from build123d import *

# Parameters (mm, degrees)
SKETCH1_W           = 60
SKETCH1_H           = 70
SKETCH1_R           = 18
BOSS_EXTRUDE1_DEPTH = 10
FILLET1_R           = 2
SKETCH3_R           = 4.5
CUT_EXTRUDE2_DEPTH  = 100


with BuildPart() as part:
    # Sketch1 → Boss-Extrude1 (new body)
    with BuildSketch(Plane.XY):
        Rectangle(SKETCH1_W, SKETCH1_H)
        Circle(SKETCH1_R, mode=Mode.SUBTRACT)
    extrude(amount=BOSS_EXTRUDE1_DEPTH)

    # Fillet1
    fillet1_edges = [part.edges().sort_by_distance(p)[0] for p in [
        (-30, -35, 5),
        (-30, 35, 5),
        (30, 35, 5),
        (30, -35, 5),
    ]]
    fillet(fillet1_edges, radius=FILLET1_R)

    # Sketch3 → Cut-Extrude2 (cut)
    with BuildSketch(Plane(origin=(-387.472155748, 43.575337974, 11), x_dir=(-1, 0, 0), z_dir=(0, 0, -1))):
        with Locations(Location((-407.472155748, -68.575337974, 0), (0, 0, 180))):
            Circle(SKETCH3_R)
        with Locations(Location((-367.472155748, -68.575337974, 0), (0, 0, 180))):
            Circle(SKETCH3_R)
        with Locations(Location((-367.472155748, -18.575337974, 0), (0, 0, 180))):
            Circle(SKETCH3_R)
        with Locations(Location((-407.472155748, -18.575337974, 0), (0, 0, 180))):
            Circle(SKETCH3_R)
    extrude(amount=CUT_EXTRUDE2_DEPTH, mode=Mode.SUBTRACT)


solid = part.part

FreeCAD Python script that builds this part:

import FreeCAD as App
import Part
import Sketcher
from FreeCAD import Vector


def edges_at(feature, points):
    """Names of the edges that pass closest to the given points."""
    edges = feature.Shape.Edges
    near = lambda p: min(range(len(edges)), key=lambda i: edges[i].distToShape(Part.Vertex(*p))[0])
    return sorted({f"Edge{near(p) + 1}" for p in points})

doc = App.newDocument("Part")
body = doc.addObject("PartDesign::Body", "Body")

# Sketch on XY plane
sketch1 = doc.addObject("Sketcher::SketchObject", "Sketch")
body.addObject(sketch1)
sketch1.AttachmentSupport = (doc.XY_Plane, [""])
sketch1.MapMode = "FlatFace"
sketch1.addGeometry(Part.LineSegment(Vector(-30, 35, 0), Vector(-30, -35, 0)), False)
sketch1.addGeometry(Part.LineSegment(Vector(-30, -35, 0), Vector(30, -35, 0)), False)
sketch1.addGeometry(Part.LineSegment(Vector(30, -35, 0), Vector(30, 35, 0)), False)
sketch1.addGeometry(Part.LineSegment(Vector(30, 35, 0), Vector(-30, 35, 0)), False)
sketch1.addGeometry(Part.Circle(Vector(0, 0, 0), Vector(0, 0, 1), 18), False)
sketch1.addConstraint(Sketcher.Constraint("Coincident", 0, 2, 1, 1))
sketch1.addConstraint(Sketcher.Constraint("Coincident", 1, 2, 2, 1))
sketch1.addConstraint(Sketcher.Constraint("Coincident", 2, 2, 3, 1))
sketch1.addConstraint(Sketcher.Constraint("Coincident", 3, 2, 0, 1))
sketch1.addConstraint(Sketcher.Constraint("Vertical", 0))
sketch1.addConstraint(Sketcher.Constraint("Horizontal", 1))
sketch1.addConstraint(Sketcher.Constraint("Vertical", 2))
sketch1.addConstraint(Sketcher.Constraint("Horizontal", 3))
sketch1.addConstraint(Sketcher.Constraint("Coincident", 4, 3, -1, 1))
sketch1.addConstraint(Sketcher.Constraint("Symmetric", 0, 2, 2, 2, -1, 1))
sketch1.addConstraint(Sketcher.Constraint("Diameter", 4, 36.0))
sketch1.addConstraint(Sketcher.Constraint("DistanceX", 1, 1, 1, 2, 60.0))
sketch1.addConstraint(Sketcher.Constraint("DistanceY", 0, 2, 0, 1, 70.0))
pad1 = doc.addObject("PartDesign::Pad", "Pad")
body.addObject(pad1)
pad1.Profile = sketch1
pad1.Length = 10
doc.recompute()

fillet = doc.addObject("PartDesign::Fillet", "Fillet")
body.addObject(fillet)
fillet.Base = (pad1, edges_at(pad1, [
    (-30, -35, 5),
    (-30, 35, 5),
    (30, 35, 5),
    (30, -35, 5),
]))
fillet.Radius = 2

# Sketch on XY plane
sketch2 = doc.addObject("Sketcher::SketchObject", "Sketch001")
body.addObject(sketch2)
sketch2.AttachmentSupport = (doc.XY_Plane, [""])
sketch2.MapMode = "FlatFace"
sketch2.AttachmentOffset = App.Placement(Vector(0, 0, 11), App.Rotation())
sketch2.addGeometry(Part.Circle(Vector(20, -25, 0), Vector(0, 0, 1), 4.5), False)
sketch2.addGeometry(Part.Circle(Vector(-20, -25, 0), Vector(0, 0, 1), 4.5), False)
sketch2.addGeometry(Part.Circle(Vector(-20, 25, 0), Vector(0, 0, 1), 4.5), False)
sketch2.addGeometry(Part.Circle(Vector(20, 25, 0), Vector(0, 0, 1), 4.5), False)
sketch2.addConstraint(Sketcher.Constraint("Equal", 0, 1))
sketch2.addConstraint(Sketcher.Constraint("Equal", 1, 2))
sketch2.addConstraint(Sketcher.Constraint("Equal", 2, 3))
sketch2.addConstraint(Sketcher.Constraint("Symmetric", 0, 3, 2, 3, -1, 1))
sketch2.addConstraint(Sketcher.Constraint("Symmetric", 1, 3, 3, 3, -1, 1))
sketch2.addConstraint(Sketcher.Constraint("Symmetric", 0, 3, 1, 3, -2))
sketch2.addConstraint(Sketcher.Constraint("Diameter", 0, 9.0))
sketch2.addConstraint(Sketcher.Constraint("DistanceX", -1, 1, 0, 3, 20.0))
sketch2.addConstraint(Sketcher.Constraint("DistanceY", 0, 3, -1, 1, 25.0))
pocket1 = doc.addObject("PartDesign::Pocket", "Pocket")
body.addObject(pocket1)
pocket1.Profile = sketch2
pocket1.Length = 100

doc.recompute()
